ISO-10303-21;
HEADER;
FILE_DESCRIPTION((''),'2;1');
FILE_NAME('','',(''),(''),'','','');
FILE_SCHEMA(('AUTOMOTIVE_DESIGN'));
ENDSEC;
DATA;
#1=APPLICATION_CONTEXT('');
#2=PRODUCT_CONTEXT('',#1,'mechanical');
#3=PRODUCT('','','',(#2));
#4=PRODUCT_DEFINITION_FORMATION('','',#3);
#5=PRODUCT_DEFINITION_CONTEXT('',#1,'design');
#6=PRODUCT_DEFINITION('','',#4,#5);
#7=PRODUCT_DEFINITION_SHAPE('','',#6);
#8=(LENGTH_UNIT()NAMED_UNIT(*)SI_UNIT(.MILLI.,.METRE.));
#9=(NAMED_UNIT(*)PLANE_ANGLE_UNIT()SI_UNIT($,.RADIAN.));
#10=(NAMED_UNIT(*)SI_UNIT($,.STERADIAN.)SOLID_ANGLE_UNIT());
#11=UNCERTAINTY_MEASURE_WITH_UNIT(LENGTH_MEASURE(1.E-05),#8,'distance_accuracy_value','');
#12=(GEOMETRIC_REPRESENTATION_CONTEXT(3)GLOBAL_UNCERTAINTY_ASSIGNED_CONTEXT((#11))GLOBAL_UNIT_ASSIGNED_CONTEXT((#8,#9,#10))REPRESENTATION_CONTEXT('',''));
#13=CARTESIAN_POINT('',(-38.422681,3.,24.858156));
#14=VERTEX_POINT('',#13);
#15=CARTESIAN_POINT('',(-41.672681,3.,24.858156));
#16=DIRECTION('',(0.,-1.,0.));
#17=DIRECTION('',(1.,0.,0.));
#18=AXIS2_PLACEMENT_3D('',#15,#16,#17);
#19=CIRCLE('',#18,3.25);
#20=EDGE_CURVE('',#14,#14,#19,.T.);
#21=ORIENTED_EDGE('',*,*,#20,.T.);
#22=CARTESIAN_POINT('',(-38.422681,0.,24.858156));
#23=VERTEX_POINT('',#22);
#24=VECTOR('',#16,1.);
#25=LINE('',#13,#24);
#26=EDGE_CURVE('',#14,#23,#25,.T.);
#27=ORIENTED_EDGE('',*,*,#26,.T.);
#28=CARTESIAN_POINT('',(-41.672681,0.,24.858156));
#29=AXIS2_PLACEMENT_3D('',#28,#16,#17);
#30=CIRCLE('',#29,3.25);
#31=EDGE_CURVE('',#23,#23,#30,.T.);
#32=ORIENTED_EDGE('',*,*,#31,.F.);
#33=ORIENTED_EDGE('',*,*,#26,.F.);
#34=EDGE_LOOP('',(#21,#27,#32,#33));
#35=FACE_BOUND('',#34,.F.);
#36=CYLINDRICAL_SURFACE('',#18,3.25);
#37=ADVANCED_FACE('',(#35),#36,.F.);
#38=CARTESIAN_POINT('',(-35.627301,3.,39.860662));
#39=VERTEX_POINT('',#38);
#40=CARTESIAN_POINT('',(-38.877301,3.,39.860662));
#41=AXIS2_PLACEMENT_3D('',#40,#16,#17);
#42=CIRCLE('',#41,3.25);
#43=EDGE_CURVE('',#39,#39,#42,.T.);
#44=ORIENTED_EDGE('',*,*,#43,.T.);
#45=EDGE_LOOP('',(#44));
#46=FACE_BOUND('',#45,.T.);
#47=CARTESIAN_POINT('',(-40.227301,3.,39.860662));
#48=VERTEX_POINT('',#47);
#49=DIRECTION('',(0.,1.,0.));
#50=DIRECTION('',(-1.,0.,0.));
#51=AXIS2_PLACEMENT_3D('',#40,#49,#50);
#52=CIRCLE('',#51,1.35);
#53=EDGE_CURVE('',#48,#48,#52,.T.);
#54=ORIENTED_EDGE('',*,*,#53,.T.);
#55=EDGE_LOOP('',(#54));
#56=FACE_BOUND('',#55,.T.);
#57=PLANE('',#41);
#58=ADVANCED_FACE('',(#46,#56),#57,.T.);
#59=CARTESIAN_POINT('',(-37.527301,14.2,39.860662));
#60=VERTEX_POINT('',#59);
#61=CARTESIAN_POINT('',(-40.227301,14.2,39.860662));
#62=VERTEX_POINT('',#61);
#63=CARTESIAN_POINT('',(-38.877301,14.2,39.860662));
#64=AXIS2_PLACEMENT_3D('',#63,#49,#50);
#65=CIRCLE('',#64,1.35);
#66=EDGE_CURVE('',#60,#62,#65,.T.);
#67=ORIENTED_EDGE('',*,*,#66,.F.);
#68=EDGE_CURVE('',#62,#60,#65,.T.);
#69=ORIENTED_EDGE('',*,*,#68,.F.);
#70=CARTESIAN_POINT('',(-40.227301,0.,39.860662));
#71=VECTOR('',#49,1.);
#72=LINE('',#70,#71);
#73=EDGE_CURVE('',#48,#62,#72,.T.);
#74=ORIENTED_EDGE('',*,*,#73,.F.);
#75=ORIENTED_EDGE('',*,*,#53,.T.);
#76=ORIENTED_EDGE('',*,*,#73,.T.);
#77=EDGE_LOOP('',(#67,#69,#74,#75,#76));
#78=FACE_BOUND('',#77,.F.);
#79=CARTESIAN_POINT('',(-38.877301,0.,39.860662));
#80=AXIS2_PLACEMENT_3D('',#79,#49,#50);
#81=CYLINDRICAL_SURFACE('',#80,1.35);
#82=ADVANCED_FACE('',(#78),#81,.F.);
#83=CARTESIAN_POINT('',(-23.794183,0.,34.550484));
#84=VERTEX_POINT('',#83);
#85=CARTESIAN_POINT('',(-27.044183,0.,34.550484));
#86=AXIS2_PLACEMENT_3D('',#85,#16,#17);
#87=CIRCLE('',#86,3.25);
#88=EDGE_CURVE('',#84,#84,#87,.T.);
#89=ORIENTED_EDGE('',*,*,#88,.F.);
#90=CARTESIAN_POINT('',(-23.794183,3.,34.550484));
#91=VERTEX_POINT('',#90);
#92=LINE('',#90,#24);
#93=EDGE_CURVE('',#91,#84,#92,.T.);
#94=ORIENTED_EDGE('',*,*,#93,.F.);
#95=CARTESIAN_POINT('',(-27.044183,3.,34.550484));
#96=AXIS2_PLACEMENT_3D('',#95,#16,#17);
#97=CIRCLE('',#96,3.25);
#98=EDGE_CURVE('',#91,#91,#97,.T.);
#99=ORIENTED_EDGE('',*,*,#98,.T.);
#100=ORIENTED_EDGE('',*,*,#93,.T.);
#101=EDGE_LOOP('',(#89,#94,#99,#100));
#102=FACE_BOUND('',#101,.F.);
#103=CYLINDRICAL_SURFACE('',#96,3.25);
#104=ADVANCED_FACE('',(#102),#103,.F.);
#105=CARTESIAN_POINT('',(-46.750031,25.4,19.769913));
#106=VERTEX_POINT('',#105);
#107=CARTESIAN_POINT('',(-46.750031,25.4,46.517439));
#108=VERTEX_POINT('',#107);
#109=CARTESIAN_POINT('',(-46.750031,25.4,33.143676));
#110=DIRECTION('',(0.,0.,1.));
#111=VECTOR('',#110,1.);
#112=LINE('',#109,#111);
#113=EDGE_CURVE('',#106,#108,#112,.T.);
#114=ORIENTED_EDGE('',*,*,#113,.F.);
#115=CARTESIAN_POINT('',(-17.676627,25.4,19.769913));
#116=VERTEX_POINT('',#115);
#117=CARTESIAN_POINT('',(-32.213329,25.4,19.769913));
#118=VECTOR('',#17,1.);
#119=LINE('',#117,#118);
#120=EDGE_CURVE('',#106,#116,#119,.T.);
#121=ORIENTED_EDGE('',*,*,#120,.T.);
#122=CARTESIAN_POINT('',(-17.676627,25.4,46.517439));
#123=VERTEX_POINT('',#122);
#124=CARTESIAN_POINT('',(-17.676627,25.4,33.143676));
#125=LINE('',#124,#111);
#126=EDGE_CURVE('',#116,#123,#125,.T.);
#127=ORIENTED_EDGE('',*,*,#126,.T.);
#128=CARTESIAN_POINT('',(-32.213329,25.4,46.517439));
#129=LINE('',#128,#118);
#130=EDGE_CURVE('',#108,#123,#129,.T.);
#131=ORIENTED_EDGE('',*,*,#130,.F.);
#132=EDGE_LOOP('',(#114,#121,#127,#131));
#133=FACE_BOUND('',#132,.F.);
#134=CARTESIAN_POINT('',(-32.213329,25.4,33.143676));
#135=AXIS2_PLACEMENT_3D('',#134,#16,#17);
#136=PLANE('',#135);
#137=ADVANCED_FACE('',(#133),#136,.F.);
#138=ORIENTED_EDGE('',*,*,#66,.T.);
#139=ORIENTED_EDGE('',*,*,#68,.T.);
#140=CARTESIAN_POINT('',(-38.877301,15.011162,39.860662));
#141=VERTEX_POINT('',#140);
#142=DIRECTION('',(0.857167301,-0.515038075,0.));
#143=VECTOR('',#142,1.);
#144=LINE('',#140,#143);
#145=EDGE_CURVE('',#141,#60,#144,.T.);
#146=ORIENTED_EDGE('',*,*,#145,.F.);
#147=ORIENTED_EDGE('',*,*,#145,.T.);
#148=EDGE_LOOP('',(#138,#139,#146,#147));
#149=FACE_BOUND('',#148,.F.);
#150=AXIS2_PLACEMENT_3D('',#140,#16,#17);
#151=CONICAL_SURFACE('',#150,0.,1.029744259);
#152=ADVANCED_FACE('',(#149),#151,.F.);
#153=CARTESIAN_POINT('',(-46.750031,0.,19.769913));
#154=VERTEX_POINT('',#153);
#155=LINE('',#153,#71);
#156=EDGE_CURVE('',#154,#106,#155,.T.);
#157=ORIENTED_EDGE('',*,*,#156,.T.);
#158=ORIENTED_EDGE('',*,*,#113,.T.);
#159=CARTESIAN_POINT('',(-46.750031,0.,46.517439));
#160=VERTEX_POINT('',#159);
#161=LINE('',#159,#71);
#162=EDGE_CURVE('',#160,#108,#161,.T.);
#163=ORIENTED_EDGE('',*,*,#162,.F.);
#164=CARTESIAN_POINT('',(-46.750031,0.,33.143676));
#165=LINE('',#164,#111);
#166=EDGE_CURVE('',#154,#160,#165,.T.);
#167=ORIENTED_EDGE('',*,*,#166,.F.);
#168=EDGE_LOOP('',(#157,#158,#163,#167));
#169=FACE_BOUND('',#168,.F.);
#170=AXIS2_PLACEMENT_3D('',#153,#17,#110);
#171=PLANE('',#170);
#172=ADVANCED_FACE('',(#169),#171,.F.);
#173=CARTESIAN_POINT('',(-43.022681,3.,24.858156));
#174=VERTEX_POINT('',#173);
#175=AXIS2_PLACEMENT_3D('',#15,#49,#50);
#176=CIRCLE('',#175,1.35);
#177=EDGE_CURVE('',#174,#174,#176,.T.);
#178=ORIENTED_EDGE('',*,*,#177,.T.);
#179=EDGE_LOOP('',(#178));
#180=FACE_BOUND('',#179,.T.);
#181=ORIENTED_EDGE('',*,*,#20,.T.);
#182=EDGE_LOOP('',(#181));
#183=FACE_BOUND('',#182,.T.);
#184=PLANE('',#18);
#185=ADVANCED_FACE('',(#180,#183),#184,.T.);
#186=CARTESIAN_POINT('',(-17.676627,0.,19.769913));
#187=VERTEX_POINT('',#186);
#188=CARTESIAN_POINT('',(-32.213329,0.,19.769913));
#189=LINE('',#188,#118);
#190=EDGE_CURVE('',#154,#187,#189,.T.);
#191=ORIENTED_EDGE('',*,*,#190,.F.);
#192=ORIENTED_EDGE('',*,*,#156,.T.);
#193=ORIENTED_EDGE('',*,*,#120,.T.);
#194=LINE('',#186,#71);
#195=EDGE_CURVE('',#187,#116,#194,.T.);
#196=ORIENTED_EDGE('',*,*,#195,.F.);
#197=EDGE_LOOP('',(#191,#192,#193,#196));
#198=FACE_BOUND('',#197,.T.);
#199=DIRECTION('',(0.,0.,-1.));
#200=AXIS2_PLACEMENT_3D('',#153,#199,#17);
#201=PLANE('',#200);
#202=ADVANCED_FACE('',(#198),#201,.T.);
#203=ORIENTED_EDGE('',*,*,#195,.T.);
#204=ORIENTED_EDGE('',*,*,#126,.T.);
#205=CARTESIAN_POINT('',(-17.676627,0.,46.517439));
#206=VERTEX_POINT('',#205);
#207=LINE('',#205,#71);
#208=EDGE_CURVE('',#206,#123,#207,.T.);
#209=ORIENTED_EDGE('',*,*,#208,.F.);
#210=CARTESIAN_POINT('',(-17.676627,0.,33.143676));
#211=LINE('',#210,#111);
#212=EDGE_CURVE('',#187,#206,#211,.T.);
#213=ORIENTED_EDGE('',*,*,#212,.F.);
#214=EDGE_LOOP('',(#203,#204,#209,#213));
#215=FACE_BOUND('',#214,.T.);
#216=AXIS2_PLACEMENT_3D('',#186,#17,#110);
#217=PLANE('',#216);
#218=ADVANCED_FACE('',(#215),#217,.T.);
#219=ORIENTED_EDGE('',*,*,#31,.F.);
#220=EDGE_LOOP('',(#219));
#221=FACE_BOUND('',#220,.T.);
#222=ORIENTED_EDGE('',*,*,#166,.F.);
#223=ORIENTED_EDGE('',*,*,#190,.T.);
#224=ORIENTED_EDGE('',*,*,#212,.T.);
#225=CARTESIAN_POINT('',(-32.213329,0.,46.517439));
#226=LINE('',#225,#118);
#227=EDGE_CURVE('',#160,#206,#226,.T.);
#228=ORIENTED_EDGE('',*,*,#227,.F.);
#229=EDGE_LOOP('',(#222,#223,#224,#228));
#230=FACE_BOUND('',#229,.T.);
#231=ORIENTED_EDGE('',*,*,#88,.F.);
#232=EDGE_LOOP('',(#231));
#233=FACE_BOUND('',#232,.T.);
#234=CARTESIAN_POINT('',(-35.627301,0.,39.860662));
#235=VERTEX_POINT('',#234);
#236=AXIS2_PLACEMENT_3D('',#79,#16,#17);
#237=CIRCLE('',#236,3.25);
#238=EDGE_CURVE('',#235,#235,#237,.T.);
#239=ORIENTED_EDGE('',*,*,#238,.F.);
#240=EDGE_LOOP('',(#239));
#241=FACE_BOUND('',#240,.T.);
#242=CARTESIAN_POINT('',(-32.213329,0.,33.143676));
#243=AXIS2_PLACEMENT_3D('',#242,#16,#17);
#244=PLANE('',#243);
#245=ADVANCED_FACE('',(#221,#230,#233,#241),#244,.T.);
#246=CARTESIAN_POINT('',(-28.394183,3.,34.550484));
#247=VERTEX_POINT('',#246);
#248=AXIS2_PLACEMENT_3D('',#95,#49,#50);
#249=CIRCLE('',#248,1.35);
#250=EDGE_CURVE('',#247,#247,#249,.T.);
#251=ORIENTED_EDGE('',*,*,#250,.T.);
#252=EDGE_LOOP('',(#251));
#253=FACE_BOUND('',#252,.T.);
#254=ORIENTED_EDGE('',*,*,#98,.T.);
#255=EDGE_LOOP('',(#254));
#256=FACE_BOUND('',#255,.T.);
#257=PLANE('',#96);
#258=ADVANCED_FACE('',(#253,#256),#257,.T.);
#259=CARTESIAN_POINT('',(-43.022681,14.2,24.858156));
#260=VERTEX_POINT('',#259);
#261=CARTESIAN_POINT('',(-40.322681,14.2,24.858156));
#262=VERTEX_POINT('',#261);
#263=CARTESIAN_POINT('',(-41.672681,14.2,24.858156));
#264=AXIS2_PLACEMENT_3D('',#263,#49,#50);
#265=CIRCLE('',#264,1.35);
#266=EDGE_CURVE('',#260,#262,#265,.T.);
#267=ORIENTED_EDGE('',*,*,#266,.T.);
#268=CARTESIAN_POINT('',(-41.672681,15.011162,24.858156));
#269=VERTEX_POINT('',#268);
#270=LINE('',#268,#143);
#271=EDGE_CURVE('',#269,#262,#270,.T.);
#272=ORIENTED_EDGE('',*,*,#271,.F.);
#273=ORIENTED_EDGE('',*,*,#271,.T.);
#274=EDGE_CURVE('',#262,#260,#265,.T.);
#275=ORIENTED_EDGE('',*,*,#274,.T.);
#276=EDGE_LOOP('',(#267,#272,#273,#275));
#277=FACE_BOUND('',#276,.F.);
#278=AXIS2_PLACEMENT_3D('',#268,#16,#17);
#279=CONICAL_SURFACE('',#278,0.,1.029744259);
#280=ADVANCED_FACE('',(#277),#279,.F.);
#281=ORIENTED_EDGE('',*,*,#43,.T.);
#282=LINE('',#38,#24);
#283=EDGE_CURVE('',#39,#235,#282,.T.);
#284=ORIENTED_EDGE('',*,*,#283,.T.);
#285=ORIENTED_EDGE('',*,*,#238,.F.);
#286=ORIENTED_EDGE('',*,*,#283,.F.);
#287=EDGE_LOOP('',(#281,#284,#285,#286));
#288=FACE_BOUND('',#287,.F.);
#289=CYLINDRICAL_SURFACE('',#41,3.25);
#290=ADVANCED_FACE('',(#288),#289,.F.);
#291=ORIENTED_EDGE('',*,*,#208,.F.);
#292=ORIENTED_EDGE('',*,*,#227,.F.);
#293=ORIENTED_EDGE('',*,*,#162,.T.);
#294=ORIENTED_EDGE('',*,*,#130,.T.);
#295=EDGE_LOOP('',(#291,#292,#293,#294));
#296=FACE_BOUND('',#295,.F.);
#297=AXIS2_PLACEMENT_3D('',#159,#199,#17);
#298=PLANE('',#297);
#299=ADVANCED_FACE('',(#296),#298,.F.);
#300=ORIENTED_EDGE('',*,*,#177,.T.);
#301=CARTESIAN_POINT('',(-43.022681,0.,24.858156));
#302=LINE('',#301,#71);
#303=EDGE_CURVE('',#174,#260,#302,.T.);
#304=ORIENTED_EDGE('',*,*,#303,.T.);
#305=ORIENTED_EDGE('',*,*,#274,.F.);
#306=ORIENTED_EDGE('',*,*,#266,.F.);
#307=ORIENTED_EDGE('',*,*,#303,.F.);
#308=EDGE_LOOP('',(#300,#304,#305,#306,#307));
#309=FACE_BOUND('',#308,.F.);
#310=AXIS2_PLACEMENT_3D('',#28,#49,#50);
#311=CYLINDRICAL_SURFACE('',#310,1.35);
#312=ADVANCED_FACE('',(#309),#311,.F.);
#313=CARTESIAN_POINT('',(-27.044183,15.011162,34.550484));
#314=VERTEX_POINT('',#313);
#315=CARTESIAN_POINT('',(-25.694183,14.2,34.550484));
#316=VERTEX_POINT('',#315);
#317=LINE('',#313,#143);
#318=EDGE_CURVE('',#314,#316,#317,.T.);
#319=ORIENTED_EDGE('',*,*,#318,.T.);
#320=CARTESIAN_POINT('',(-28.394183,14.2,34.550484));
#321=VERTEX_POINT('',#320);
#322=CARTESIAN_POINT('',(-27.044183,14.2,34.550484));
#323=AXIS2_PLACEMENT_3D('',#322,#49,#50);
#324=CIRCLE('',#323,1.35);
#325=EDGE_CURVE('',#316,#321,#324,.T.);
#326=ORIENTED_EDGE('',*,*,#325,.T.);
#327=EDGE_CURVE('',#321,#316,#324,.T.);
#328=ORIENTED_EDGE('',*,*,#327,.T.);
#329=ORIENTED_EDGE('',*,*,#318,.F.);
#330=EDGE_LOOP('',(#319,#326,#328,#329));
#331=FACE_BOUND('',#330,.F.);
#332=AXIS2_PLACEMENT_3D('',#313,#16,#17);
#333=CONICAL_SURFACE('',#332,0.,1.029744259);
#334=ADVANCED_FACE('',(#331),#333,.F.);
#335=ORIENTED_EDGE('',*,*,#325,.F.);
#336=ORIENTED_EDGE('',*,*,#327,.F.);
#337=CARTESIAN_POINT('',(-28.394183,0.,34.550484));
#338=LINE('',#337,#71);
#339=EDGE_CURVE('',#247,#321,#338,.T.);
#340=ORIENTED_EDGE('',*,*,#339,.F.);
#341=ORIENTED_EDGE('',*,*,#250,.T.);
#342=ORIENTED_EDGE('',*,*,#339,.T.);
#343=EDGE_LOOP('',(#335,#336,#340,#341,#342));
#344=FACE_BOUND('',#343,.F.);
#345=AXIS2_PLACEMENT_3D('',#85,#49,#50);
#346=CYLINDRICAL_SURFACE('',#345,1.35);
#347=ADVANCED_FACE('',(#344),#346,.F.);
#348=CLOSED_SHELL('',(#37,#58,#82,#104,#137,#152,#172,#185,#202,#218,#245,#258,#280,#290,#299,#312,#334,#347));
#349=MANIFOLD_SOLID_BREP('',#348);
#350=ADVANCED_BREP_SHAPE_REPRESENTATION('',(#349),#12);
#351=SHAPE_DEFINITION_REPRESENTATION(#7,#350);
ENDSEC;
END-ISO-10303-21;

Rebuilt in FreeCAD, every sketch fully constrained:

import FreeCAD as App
import Part
import Sketcher
from FreeCAD import Vector


def add_polygon(sketch, points):
    """Adds a closed chain of lines whose ends are joined by coincident constraints."""
    first, n = sketch.GeometryCount, len(points)
    for a, b in zip(points, points[1:] + points[:1]):
        sketch.addGeometry(Part.LineSegment(App.Vector(*a, 0), App.Vector(*b, 0)), False)
    for i in range(n):
        sketch.addConstraint(Sketcher.Constraint("Coincident", first + i, 2, first + (i + 1) % n, 1))

doc = App.newDocument("Part")
body = doc.addObject("PartDesign::Body", "Body")

sketch1 = doc.addObject("Sketcher::SketchObject", "Sketch")
body.addObject(sketch1)
sketch1.AttachmentSupport = (doc.XZ_Plane, [""])
sketch1.MapMode = "FlatFace"
add_polygon(sketch1, [(-46.750031, 46.517439), (-46.750031, 19.769913), (-17.676627, 19.769913), (-17.676627, 46.517439)])
sketch1.addConstraint([
    Sketcher.Constraint("Vertical", 0),
    Sketcher.Constraint("Horizontal", 1),
    Sketcher.Constraint("Vertical", 2),
    Sketcher.Constraint("Horizontal", 3),
    Sketcher.Constraint("DistanceX", 1, 1, 1, 2, 29.073404),
    Sketcher.Constraint("DistanceY", 0, 2, 0, 1, 26.747527),
    Sketcher.Constraint("DistanceX", 0, 2, -1, 1, 46.750031),
    Sketcher.Constraint("DistanceY", -1, 1, 2, 2, 46.517439),
])
pad1 = doc.addObject("PartDesign::Pad", "Pad")
body.addObject(pad1)
pad1.Profile = sketch1
pad1.Length = 25.4
pad1.Reversed = True

sketch2 = doc.addObject("Sketcher::SketchObject", "Sketch001")
body.addObject(sketch2)
sketch2.AttachmentSupport = (doc.XZ_Plane, [""])
sketch2.MapMode = "FlatFace"
sketch2.addGeometry([
    Part.Circle(Vector(-27.044183, 34.550484, 0), Vector(0, 0, 1), 1.35),
    Part.Circle(Vector(-41.672681, 24.858156, 0), Vector(0, 0, 1), 1.35),
    Part.Circle(Vector(-38.877301, 39.860662, 0), Vector(0, 0, 1), 1.35),
], False)
sketch2.addConstraint([
    Sketcher.Constraint("Equal", 0, 1),
    Sketcher.Constraint("Equal", 1, 2),
    Sketcher.Constraint("Diameter", 0, 2.7),
    Sketcher.Constraint("DistanceX", 2, 3, -1, 1, 38.877301),
    Sketcher.Constraint("DistanceX", 1, 3, -1, 1, 41.672681),
    Sketcher.Constraint("DistanceY", 1, 3, 0, 3, 9.692328),
    Sketcher.Constraint("DistanceX", 2, 3, 0, 3, 11.833118),
    Sketcher.Constraint("DistanceY", -1, 1, 0, 3, 34.550484),
    Sketcher.Constraint("DistanceY", -1, 1, 2, 3, 39.860662),
])
doc.recompute()
hole = doc.addObject("PartDesign::Hole", "Hole")
body.addObject(hole)
hole.Profile = sketch2
hole.ThreadType = "None"
hole.Diameter = 2.7
hole.DepthType = "Dimension"
hole.Depth = 14.2
hole.DrillPoint = "Angled"
hole.DrillPointAngle = 118
hole.HoleCutType = "Counterbore"
hole.HoleCutDiameter = 6.5
hole.HoleCutDepth = 3

doc.recompute()
